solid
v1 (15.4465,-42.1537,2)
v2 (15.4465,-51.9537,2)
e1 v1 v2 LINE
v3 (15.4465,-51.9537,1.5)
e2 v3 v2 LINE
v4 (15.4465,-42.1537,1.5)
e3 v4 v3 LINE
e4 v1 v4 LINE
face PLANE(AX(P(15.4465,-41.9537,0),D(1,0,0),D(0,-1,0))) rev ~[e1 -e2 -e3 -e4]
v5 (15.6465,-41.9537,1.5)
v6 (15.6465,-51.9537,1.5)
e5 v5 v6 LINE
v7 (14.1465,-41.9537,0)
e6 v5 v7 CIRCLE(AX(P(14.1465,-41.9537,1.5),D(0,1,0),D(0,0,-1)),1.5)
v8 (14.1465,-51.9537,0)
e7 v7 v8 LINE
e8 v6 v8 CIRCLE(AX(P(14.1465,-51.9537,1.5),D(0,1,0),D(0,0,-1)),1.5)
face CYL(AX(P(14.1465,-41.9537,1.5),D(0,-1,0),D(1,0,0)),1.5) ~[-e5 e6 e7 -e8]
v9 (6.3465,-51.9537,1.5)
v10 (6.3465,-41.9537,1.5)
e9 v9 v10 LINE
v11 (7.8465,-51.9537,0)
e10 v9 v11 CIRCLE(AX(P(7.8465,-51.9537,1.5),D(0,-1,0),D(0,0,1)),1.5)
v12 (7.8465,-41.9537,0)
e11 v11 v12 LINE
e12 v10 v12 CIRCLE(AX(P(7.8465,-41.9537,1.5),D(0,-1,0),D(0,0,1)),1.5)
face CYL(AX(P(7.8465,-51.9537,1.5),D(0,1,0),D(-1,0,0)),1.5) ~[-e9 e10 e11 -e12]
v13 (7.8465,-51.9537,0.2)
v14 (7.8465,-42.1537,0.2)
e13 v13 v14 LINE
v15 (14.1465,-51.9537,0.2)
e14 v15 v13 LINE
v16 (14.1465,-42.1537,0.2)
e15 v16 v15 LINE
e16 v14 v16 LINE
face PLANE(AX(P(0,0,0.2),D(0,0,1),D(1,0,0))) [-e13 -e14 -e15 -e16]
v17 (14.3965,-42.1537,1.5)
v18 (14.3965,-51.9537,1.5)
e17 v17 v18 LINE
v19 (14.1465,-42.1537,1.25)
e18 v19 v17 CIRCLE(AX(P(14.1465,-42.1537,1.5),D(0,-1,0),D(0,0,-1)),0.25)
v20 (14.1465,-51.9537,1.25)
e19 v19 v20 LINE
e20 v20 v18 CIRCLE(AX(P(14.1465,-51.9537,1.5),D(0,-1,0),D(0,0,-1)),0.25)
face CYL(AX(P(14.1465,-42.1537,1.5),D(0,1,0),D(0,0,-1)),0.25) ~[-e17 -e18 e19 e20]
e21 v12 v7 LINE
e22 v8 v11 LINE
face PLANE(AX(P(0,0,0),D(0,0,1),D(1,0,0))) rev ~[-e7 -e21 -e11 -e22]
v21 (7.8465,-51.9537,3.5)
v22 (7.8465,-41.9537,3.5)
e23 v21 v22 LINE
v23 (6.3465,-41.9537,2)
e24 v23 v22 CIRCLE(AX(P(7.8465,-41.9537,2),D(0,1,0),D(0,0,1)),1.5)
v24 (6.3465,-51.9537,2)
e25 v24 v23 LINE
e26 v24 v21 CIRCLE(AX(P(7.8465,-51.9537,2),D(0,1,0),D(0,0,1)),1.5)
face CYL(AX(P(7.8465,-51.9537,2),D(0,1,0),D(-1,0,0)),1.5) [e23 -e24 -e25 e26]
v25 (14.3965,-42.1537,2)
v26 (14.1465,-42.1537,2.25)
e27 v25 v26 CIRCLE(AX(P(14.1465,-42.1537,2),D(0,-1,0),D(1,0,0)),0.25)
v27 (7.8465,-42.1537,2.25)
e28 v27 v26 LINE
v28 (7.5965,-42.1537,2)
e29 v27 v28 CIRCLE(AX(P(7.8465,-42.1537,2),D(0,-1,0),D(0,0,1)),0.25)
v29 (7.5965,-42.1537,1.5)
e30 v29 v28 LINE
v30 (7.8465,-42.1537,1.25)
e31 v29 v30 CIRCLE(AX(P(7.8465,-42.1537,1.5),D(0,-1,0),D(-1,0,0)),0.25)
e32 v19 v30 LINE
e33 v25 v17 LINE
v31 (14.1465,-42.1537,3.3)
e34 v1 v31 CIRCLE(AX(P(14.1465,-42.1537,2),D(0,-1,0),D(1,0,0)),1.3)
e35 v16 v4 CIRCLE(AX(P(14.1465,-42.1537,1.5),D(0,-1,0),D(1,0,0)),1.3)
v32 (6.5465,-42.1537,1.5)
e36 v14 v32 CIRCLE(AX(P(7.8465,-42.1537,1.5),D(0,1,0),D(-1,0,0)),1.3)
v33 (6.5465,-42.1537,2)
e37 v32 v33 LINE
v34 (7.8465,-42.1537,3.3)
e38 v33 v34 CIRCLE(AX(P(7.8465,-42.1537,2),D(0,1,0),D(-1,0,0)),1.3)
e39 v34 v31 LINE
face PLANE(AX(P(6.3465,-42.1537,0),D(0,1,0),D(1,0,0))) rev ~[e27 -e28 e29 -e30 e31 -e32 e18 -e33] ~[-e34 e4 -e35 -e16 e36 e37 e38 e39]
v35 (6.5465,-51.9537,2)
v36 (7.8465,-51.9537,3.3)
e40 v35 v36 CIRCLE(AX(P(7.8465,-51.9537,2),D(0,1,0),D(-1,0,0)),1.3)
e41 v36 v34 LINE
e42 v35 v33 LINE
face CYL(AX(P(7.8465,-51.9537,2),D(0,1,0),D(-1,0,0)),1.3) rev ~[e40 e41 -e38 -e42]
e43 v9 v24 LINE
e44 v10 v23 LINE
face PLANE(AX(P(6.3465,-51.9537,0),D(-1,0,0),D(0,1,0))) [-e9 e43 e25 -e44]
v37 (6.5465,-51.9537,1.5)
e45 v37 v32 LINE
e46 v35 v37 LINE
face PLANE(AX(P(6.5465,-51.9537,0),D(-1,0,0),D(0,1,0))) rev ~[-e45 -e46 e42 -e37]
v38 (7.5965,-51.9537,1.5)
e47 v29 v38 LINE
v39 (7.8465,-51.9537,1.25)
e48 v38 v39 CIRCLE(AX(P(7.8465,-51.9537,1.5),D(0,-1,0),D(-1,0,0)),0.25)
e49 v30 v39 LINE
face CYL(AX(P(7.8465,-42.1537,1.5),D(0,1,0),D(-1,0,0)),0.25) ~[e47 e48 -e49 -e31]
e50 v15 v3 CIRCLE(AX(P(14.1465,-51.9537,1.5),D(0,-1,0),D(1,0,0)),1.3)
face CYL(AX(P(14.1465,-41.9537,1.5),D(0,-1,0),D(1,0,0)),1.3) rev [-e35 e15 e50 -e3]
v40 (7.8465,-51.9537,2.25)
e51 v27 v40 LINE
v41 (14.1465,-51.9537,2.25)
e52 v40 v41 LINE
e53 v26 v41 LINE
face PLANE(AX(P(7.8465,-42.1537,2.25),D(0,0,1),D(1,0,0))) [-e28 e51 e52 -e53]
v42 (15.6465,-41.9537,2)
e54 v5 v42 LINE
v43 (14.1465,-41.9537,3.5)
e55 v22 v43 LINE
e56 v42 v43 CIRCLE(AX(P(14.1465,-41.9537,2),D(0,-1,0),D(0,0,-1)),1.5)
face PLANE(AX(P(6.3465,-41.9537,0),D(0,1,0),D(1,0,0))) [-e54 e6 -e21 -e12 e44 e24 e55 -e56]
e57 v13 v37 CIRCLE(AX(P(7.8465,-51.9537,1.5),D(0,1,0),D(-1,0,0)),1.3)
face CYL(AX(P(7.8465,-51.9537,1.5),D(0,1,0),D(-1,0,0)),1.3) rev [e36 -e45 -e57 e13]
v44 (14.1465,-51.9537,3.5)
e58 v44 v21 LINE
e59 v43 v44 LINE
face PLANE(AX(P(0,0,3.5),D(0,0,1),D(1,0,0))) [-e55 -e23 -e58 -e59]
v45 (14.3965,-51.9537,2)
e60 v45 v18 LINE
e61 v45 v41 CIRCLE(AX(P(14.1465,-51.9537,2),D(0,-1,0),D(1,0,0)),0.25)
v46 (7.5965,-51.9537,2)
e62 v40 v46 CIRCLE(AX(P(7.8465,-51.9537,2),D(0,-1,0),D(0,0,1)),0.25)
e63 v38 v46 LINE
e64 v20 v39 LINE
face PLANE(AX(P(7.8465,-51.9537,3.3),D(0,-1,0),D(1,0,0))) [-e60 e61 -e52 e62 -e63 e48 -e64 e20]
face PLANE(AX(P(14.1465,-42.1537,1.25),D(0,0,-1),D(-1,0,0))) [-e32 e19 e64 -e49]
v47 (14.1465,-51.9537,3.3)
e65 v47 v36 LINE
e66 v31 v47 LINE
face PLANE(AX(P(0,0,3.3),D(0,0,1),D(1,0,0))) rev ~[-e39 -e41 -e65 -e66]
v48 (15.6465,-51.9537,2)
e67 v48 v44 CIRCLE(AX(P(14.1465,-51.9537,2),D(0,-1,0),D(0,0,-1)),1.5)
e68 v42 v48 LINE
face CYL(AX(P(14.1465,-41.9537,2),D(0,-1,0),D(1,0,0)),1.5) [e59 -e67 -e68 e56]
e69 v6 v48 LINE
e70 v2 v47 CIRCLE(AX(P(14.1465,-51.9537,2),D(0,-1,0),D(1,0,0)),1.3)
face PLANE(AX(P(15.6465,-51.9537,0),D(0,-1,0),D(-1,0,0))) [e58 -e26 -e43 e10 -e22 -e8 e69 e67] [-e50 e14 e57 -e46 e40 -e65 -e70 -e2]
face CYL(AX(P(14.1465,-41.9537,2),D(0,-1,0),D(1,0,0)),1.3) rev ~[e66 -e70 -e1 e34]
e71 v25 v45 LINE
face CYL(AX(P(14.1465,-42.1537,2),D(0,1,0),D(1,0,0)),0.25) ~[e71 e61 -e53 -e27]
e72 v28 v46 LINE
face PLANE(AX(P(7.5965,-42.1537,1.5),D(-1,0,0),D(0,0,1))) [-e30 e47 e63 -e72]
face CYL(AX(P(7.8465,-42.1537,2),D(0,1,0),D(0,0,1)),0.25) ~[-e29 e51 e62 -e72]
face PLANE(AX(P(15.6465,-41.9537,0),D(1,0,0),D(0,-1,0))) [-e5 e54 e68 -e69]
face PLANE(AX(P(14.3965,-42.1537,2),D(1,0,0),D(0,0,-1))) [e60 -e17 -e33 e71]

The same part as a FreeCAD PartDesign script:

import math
import FreeCAD as App
import Part
import Sketcher
from FreeCAD import Vector
Q = App.Units.Quantity


def edges_at(feature, points):
    """Names of the edges that pass closest to the given points."""
    edges = feature.Shape.Edges
    near = lambda p: min(range(len(edges)), key=lambda i: edges[i].distToShape(Part.Vertex(*p))[0])
    return sorted({f"Edge{near(p) + 1}" for p in points})


def faces_at(feature, points):
    """Names of the faces that lie closest to the given points."""
    faces = feature.Shape.Faces
    near = lambda p: min(range(len(faces)), key=lambda i: faces[i].distToShape(Part.Vertex(*p))[0])
    return sorted({f"Face{near(p) + 1}" for p in points})


def add_polygon(sketch, points):
    """Adds a closed chain of lines whose ends are joined by coincident constraints."""
    first, n = sketch.GeometryCount, len(points)
    for a, b in zip(points, points[1:] + points[:1]):
        sketch.addGeometry(Part.LineSegment(App.Vector(*a, 0), App.Vector(*b, 0)), False)
    for i in range(n):
        sketch.addConstraint(Sketcher.Constraint("Coincident", first + i, 2, first + (i + 1) % n, 1))

doc = App.newDocument("Part")
body = doc.addObject("PartDesign::Body", "Body")

# Sketch on XY plane
sketch1 = doc.addObject("Sketcher::SketchObject", "Sketch")
body.addObject(sketch1)
sketch1.AttachmentSupport = (doc.XY_Plane, [""])
sketch1.MapMode = "FlatFace"
add_polygon(sketch1, [(16, -42), (6, -42), (6, -52), (16, -52)])  # lines 0-3
sketch1.addConstraint(Sketcher.Constraint("Horizontal", 0))
sketch1.addConstraint(Sketcher.Constraint("Vertical", 1))
sketch1.addConstraint(Sketcher.Constraint("Horizontal", 2))
sketch1.addConstraint(Sketcher.Constraint("Vertical", 3))
sketch1.addConstraint(Sketcher.Constraint("DistanceY", 1, 2, 1, 1, Q("10 mm")))
sketch1.addConstraint(Sketcher.Constraint("DistanceX", 0, 2, 0, 1, Q("9.3 mm")))
sketch1.addConstraint(Sketcher.Constraint("DistanceX", -1, 1, 0, 2, Q("6.3465 mm")))
sketch1.addConstraint(Sketcher.Constraint("DistanceY", 0, 2, -1, 1, Q("41.9537 mm")))
pad1 = doc.addObject("PartDesign::Pad", "Pad")
body.addObject(pad1)
pad1.Profile = sketch1
pad1.Length = 3.5
doc.recompute()

fillet = doc.addObject("PartDesign::Fillet", "Fillet")
body.addObject(fillet)
fillet.Base = (pad1, edges_at(pad1, [
    (15.646, -46.954, 3.5),
    (6.346, -46.954, 3.5),
    (6.346, -46.954, 0),
    (15.646, -46.954, 0),
]))
fillet.Radius = 1.5
doc.recompute()

thickness = doc.addObject("PartDesign::Thickness", "Thickness")
body.addObject(thickness)
thickness.Base = (fillet, faces_at(fillet, [(9.947, -51.954, 2.333)]))
thickness.Value = 0.2
thickness.Reversed = True
thickness.Join = "Intersection"

# Sketch on XZ plane
sketch2 = doc.addObject("Sketcher::SketchObject", "Sketch001")
body.addObject(sketch2)
sketch2.AttachmentSupport = (doc.XZ_Plane, [""])
sketch2.MapMode = "FlatFace"
sketch2.AttachmentOffset = App.Placement(Vector(0, 0, 42.1537), App.Rotation())
sketch2.addGeometry(Part.LineSegment(Vector(14.15, 2.25, 0), Vector(7.85, 2.25, 0)), False)
sketch2.addGeometry(Part.ArcOfCircle(Part.Circle(Vector(7.85, 2, 0), Vector(0, 0, 1), 0.25), math.radians(90), math.radians(180)), False)
sketch2.addGeometry(Part.LineSegment(Vector(7.6, 2, 0), Vector(7.6, 1.5, 0)), False)
sketch2.addGeometry(Part.ArcOfCircle(Part.Circle(Vector(7.85, 1.5, 0), Vector(0, 0, 1), 0.25), math.radians(180), math.radians(270)), False)
sketch2.addGeometry(Part.LineSegment(Vector(7.85, 1.25, 0), Vector(14.15, 1.25, 0)), False)
sketch2.addGeometry(Part.ArcOfCircle(Part.Circle(Vector(14.15, 1.5, 0), Vector(0, 0, 1), 0.25), math.radians(-90), math.radians(0)), False)
sketch2.addGeometry(Part.LineSegment(Vector(14.4, 1.5, 0), Vector(14.4, 2, 0)), False)
sketch2.addGeometry(Part.ArcOfCircle(Part.Circle(Vector(14.15, 2, 0), Vector(0, 0, 1), 0.25), math.radians(0), math.radians(90)), False)
sketch2.addConstraint(Sketcher.Constraint("Tangent", 0, 2, 1, 1))
sketch2.addConstraint(Sketcher.Constraint("Tangent", 1, 2, 2, 1))
sketch2.addConstraint(Sketcher.Constraint("Tangent", 2, 2, 3, 1))
sketch2.addConstraint(Sketcher.Constraint("Tangent", 3, 2, 4, 1))
sketch2.addConstraint(Sketcher.Constraint("Tangent", 4, 2, 5, 1))
sketch2.addConstraint(Sketcher.Constraint("Tangent", 5, 2, 6, 1))
sketch2.addConstraint(Sketcher.Constraint("Tangent", 6, 2, 7, 1))
sketch2.addConstraint(Sketcher.Constraint("Tangent", 7, 2, 0, 1))
sketch2.addConstraint(Sketcher.Constraint("Horizontal", 0))
sketch2.addConstraint(Sketcher.Constraint("Vertical", 2))
sketch2.addConstraint(Sketcher.Constraint("Horizontal", 4))
sketch2.addConstraint(Sketcher.Constraint("Vertical", 6))
sketch2.addConstraint(Sketcher.Constraint("Equal", 1, 3))
sketch2.addConstraint(Sketcher.Constraint("Equal", 3, 5))
sketch2.addConstraint(Sketcher.Constraint("Equal", 5, 7))
sketch2.addConstraint(Sketcher.Constraint("DistanceY", 3, 2, 0, 2, Q("1 mm")))
sketch2.addConstraint(Sketcher.Constraint("Radius", 1, Q("0.25 mm")))
sketch2.addConstraint(Sketcher.Constraint("DistanceX", 0, 2, 0, 1, Q("6.3 mm")))
sketch2.addConstraint(Sketcher.Constraint("DistanceY", -1, 1, 1, 3, Q("2 mm")))
sketch2.addConstraint(Sketcher.Constraint("DistanceX", -1, 1, 1, 3, Q("7.8465 mm")))
pad2 = doc.addObject("PartDesign::Pad", "Pad001")
body.addObject(pad2)
pad2.Profile = sketch2
pad2.Length = 9.8

doc.recompute()
